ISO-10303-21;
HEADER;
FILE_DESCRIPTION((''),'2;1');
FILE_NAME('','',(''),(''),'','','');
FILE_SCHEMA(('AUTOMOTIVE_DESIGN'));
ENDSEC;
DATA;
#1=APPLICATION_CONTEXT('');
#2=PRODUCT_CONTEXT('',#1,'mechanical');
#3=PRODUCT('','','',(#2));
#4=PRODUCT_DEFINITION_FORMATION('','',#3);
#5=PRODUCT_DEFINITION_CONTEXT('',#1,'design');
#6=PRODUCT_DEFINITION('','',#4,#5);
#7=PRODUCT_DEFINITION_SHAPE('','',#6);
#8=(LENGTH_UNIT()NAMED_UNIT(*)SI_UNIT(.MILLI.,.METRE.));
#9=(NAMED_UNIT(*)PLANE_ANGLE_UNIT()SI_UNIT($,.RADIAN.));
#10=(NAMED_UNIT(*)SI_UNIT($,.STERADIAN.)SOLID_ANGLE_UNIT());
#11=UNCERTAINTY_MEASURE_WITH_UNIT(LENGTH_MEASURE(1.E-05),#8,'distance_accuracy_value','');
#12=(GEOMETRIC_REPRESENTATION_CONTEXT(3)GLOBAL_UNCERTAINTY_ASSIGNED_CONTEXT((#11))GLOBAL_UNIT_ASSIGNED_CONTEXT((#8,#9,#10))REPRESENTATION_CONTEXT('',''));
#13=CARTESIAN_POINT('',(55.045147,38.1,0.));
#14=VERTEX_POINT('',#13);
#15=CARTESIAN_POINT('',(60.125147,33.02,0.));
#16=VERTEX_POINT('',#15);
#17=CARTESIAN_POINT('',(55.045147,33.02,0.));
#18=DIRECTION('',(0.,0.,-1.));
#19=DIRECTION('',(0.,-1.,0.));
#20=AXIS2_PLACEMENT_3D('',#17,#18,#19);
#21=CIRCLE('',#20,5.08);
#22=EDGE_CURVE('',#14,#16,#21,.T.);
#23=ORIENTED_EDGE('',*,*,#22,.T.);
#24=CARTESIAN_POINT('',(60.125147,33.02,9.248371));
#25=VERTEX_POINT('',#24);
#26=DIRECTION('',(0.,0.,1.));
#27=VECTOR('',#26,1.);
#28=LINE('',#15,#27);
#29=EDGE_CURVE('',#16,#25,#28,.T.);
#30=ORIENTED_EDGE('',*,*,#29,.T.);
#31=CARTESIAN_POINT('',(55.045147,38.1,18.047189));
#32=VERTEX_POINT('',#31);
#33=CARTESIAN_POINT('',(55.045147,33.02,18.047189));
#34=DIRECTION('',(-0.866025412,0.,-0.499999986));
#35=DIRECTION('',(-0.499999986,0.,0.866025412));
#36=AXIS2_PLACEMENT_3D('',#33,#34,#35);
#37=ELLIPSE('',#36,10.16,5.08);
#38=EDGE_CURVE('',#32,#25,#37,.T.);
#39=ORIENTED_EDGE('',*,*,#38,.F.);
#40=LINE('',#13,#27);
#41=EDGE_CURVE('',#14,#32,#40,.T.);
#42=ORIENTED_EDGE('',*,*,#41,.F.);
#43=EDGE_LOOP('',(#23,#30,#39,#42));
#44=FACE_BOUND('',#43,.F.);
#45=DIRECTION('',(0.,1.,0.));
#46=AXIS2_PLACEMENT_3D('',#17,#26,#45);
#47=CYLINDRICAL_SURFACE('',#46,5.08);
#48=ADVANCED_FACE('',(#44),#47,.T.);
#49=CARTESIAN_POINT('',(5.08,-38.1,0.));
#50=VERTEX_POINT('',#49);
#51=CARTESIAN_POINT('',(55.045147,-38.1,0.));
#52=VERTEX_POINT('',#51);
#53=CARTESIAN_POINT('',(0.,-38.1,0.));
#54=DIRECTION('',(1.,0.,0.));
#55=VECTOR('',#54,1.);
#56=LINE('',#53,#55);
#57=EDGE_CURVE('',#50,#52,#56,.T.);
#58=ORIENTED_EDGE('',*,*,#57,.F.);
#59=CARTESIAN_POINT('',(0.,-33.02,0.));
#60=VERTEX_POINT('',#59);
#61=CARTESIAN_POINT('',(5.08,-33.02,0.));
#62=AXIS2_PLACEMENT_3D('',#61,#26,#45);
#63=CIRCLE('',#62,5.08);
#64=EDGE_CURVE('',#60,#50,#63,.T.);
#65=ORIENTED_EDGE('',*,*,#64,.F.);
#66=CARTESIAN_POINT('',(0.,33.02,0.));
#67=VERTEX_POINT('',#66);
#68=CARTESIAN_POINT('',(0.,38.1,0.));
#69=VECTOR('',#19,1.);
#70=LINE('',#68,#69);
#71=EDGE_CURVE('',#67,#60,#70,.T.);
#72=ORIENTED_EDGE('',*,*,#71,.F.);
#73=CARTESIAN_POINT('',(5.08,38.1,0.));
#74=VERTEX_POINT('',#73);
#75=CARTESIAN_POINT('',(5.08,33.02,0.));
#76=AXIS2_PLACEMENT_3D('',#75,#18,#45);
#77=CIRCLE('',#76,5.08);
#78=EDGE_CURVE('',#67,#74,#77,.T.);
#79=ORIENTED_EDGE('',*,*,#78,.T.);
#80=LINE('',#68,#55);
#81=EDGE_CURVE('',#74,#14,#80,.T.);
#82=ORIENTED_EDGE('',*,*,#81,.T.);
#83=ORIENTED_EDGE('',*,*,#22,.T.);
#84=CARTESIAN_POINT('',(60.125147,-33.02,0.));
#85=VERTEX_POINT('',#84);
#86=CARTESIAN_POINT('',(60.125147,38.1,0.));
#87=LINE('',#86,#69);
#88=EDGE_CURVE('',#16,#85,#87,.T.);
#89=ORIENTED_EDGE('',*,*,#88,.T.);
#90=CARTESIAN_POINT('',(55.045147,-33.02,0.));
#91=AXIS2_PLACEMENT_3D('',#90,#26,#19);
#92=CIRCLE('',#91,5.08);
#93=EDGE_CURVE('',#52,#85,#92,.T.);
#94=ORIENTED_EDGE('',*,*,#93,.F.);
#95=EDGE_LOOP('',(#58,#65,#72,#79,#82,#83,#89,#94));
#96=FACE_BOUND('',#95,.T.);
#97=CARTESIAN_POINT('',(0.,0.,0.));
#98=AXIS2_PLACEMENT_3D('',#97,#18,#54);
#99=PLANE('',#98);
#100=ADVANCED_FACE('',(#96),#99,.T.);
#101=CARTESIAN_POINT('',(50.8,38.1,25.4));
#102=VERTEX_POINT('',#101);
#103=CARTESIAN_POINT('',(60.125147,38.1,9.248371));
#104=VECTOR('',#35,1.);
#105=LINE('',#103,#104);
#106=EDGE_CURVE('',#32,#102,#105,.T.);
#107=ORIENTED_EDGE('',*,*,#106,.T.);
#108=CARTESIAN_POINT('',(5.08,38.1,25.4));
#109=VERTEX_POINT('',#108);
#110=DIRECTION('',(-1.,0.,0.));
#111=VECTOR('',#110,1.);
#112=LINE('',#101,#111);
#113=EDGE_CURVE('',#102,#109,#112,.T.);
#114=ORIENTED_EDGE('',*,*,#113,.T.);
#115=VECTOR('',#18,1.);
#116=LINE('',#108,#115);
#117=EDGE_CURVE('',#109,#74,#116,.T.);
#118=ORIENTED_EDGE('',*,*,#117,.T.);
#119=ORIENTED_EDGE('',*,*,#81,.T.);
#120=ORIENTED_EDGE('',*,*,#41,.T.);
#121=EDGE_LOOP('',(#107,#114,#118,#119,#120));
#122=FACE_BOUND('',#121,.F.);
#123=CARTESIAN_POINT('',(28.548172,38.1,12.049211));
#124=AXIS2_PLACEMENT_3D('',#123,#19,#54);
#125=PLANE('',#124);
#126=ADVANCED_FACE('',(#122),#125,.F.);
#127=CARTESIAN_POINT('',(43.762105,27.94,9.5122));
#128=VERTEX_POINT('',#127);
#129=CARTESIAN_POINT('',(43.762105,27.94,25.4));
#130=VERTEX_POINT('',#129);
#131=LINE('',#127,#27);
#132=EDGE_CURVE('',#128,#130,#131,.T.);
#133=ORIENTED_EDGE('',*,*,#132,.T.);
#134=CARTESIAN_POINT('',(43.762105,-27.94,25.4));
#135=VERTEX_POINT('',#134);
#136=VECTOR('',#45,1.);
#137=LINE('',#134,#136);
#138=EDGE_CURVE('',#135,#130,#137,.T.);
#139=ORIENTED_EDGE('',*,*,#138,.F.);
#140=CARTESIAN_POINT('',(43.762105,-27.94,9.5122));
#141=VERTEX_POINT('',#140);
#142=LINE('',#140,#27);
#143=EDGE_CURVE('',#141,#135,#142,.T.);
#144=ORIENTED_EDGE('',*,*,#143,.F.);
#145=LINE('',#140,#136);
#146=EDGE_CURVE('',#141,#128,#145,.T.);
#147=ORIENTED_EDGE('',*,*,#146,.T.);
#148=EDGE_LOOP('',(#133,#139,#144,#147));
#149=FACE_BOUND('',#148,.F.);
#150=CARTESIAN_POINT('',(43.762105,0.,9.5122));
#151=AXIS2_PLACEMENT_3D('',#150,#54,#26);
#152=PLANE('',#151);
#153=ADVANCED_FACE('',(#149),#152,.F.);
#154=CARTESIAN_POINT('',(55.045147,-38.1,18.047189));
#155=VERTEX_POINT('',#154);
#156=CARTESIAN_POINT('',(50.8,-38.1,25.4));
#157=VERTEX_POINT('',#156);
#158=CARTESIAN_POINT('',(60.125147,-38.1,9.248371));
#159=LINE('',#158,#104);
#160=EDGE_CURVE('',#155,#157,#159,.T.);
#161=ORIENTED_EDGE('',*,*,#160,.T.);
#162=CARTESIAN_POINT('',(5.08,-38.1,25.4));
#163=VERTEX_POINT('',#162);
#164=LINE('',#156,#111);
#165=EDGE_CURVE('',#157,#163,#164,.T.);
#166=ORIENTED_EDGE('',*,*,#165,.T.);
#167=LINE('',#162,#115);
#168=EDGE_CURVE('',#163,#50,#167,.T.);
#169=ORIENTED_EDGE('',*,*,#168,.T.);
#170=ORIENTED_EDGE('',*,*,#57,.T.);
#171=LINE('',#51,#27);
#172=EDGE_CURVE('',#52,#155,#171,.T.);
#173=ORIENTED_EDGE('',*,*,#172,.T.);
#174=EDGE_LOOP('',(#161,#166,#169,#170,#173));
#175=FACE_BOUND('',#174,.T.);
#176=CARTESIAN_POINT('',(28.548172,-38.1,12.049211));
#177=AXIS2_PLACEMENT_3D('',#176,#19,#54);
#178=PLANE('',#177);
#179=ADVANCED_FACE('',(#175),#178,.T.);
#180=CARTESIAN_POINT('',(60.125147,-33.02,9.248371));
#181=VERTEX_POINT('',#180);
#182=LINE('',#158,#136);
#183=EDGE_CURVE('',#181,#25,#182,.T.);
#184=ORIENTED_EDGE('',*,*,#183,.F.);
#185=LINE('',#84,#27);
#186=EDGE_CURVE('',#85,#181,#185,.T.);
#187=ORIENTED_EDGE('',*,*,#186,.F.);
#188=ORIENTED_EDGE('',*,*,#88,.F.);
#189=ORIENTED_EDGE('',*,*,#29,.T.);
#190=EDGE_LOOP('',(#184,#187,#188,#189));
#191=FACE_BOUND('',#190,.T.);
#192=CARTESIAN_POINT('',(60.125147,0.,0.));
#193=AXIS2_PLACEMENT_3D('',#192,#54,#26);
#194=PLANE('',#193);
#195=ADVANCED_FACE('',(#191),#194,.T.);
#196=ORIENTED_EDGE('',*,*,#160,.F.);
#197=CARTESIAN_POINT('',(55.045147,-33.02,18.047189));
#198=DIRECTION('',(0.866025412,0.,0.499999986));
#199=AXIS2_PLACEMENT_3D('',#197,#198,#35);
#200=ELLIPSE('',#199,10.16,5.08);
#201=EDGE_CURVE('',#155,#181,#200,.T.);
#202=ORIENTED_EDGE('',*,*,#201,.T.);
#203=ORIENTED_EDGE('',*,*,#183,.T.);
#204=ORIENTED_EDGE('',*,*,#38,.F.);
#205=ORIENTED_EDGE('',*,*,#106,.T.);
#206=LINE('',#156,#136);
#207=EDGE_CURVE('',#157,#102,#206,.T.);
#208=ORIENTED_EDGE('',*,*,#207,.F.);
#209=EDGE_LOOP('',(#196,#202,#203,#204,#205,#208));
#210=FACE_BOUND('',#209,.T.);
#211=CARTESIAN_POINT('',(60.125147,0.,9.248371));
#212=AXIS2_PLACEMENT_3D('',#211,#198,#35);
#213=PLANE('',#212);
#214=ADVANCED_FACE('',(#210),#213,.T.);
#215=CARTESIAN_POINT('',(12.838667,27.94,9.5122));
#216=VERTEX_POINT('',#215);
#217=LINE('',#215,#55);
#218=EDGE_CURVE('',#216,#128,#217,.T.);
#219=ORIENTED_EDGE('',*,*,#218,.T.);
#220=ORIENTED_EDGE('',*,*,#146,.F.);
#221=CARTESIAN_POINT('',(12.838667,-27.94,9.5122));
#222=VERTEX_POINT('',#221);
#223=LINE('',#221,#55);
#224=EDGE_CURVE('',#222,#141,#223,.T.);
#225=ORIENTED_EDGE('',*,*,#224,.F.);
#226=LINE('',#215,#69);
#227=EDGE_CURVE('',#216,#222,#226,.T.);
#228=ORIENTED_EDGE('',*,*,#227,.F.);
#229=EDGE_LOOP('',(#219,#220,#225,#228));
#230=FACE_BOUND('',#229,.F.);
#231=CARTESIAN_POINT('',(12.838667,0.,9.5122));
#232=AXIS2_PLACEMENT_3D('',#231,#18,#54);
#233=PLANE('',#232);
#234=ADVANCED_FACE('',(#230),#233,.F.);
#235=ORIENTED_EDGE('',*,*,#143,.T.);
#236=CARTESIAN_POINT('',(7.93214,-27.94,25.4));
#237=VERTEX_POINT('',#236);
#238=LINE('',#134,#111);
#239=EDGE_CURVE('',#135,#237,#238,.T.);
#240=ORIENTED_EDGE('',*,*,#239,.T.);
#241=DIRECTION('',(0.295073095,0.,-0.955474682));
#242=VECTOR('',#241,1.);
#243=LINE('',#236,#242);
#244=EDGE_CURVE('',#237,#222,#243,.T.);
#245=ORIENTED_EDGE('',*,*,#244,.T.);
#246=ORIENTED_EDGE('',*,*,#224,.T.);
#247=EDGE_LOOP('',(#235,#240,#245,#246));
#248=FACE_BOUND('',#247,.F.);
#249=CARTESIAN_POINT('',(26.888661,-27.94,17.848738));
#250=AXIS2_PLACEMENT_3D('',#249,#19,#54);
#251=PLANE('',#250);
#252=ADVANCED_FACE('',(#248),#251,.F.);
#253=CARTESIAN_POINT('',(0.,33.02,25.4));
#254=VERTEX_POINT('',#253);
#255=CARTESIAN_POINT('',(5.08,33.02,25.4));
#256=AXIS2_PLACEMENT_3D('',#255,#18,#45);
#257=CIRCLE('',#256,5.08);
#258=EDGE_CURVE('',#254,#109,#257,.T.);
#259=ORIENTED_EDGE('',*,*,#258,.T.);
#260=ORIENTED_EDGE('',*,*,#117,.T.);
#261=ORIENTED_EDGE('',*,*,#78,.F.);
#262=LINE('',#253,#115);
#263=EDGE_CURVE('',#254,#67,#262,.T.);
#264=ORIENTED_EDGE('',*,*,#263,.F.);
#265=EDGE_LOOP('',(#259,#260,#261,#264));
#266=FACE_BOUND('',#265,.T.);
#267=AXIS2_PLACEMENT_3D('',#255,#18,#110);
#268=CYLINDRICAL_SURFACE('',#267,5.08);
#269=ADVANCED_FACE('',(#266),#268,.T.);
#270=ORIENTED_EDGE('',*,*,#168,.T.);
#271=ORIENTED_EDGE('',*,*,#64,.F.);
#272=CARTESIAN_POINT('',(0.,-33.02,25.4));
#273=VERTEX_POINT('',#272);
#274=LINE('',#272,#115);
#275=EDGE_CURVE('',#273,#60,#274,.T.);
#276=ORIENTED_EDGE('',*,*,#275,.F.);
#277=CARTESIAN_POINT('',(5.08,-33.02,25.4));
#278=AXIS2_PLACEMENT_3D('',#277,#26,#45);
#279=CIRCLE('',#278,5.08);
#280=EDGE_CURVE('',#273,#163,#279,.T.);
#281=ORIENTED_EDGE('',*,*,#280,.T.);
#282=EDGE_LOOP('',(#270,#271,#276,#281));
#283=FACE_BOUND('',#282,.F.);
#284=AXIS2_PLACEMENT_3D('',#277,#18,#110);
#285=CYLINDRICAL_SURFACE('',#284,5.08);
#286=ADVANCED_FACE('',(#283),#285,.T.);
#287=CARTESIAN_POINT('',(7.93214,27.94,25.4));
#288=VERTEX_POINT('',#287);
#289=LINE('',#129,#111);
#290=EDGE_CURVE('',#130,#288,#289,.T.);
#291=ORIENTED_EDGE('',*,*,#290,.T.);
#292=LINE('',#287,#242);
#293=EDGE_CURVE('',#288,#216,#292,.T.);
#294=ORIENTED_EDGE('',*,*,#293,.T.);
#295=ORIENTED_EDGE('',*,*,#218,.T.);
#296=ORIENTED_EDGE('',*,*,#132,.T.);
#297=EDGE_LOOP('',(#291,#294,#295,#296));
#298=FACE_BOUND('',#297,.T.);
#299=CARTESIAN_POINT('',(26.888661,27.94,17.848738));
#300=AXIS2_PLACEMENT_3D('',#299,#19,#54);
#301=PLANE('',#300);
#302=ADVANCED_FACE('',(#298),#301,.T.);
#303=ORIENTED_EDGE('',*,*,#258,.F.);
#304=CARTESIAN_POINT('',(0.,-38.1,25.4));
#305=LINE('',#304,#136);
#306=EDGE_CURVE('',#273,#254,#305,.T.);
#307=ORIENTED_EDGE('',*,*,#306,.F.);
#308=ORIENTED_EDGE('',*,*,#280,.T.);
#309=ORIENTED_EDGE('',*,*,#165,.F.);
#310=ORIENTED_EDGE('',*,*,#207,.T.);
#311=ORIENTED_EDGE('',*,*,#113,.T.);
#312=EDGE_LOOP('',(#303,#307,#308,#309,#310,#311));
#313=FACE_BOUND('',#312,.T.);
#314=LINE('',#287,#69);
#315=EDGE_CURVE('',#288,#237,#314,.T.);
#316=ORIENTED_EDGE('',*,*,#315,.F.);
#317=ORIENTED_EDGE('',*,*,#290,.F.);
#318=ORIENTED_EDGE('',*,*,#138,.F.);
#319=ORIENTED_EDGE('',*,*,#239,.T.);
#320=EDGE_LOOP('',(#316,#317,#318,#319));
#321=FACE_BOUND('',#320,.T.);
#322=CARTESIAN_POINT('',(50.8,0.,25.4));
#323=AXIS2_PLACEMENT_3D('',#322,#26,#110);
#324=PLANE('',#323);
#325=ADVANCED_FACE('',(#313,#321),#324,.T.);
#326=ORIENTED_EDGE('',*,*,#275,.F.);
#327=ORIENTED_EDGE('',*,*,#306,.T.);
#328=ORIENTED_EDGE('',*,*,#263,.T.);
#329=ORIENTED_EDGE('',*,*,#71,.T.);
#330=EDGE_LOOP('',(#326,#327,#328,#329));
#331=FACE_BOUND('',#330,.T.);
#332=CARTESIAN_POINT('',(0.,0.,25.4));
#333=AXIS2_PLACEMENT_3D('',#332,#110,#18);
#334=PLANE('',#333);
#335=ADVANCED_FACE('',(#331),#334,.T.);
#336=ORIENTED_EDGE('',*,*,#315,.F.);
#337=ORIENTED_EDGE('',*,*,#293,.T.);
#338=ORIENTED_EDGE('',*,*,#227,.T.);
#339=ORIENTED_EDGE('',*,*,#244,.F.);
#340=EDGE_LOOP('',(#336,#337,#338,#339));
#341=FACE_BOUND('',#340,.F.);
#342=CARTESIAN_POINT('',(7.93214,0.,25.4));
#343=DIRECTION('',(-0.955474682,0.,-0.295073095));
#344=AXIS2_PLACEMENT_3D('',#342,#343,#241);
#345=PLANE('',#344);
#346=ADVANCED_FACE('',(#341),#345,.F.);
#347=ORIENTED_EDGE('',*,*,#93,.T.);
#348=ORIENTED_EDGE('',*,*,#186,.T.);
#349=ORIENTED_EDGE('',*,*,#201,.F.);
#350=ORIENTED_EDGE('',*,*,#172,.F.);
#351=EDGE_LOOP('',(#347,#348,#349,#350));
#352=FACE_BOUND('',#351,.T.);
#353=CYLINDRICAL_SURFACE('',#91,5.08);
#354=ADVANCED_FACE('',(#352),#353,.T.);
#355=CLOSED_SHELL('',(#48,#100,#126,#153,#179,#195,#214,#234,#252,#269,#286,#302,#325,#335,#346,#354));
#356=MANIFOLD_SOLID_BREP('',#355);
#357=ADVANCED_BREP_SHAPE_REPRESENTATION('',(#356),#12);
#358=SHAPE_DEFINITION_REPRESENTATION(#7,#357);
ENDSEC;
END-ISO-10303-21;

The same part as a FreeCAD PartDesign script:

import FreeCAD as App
import Part
import Sketcher
from FreeCAD import Vector
Q = App.Units.Quantity


def edges_at(feature, points):
    """Names of the edges that pass closest to the given points."""
    edges = feature.Shape.Edges
    near = lambda p: min(range(len(edges)), key=lambda i: edges[i].distToShape(Part.Vertex(*p))[0])
    return sorted({f"Edge{near(p) + 1}" for p in points})


def add_polygon(sketch, points):
    """Adds a closed chain of lines whose ends are joined by coincident constraints."""
    first, n = sketch.GeometryCount, len(points)
    for a, b in zip(points, points[1:] + points[:1]):
        sketch.addGeometry(Part.LineSegment(App.Vector(*a, 0), App.Vector(*b, 0)), False)
    for i in range(n):
        sketch.addConstraint(Sketcher.Constraint("Coincident", first + i, 2, first + (i + 1) % n, 1))

doc = App.newDocument("Part")
body = doc.addObject("PartDesign::Body", "Body")

# Sketch on XZ plane
sketch1 = body.newObject("Sketcher::SketchObject", "Sketch")
sketch1.AttachmentSupport = (doc.getObject("XZ_Plane"), [""])
sketch1.MapMode = "FlatFace"
add_polygon(sketch1, [(0, 25), (0, 0), (60, 0), (60, 9), (51, 25)])  # lines 0-4
sketch1.addConstraint([
    Sketcher.Constraint("Vertical", 0),
    Sketcher.Constraint("Horizontal", 1),
    Sketcher.Constraint("Vertical", 2),
    Sketcher.Constraint("Horizontal", 4),
    Sketcher.Constraint("Coincident", 0, 2, -1, 1),
    Sketcher.Constraint("DistanceX", 4, 2, 4, 1, Q("2 in")),
    Sketcher.Constraint("DistanceY", 0, 2, 0, 1, Q("1 in")),
    Sketcher.Constraint("Angle", 3, Q("119.999999 deg")),
    Sketcher.Constraint("DistanceY", 2, 1, 2, 2, Q("9.248371 mm")),
])
pad1 = body.newObject("PartDesign::Pad", "Pad")
pad1.Profile = sketch1
pad1.Length = Q("3 in")
pad1.Midplane = True

# Sketch on XZ plane
sketch2 = body.newObject("Sketcher::SketchObject", "Sketch001")
sketch2.AttachmentSupport = (doc.getObject("XZ_Plane"), [""])
sketch2.MapMode = "FlatFace"
add_polygon(sketch2, [(44, 25), (8, 25), (13, 10), (44, 10)])  # lines 0-3
sketch2.addConstraint([
    Sketcher.Constraint("Horizontal", 0),
    Sketcher.Constraint("Horizontal", 2),
    Sketcher.Constraint("Vertical", 3),
    Sketcher.Constraint("DistanceY", -1, 1, 0, 2, Q("1 in")),
    Sketcher.Constraint("DistanceY", 3, 1, 3, 2, Q("15.8878 mm")),
    Sketcher.Constraint("DistanceX", 0, 2, 0, 1, Q("35.829965 mm")),
    Sketcher.Constraint("DistanceX", 2, 1, 2, 2, Q("30.923438 mm")),
    Sketcher.Constraint("DistanceX", -1, 1, 0, 2, Q("7.93214 mm")),
])
pocket1 = body.newObject("PartDesign::Pocket", "Pocket")
pocket1.Profile = sketch2
pocket1.Length = Q("2.2 in")
pocket1.Midplane = True
doc.recompute()

fillet = body.newObject("PartDesign::Fillet", "Fillet")
fillet.Base = (pocket1, edges_at(pocket1, [
    (0, -38.1, 12.7),
    (60.125, -38.1, 4.624),
    (60.125, 38.1, 4.624),
    (0, 38.1, 12.7),
]))
fillet.Radius = Q("0.2 in")

doc.recompute()
